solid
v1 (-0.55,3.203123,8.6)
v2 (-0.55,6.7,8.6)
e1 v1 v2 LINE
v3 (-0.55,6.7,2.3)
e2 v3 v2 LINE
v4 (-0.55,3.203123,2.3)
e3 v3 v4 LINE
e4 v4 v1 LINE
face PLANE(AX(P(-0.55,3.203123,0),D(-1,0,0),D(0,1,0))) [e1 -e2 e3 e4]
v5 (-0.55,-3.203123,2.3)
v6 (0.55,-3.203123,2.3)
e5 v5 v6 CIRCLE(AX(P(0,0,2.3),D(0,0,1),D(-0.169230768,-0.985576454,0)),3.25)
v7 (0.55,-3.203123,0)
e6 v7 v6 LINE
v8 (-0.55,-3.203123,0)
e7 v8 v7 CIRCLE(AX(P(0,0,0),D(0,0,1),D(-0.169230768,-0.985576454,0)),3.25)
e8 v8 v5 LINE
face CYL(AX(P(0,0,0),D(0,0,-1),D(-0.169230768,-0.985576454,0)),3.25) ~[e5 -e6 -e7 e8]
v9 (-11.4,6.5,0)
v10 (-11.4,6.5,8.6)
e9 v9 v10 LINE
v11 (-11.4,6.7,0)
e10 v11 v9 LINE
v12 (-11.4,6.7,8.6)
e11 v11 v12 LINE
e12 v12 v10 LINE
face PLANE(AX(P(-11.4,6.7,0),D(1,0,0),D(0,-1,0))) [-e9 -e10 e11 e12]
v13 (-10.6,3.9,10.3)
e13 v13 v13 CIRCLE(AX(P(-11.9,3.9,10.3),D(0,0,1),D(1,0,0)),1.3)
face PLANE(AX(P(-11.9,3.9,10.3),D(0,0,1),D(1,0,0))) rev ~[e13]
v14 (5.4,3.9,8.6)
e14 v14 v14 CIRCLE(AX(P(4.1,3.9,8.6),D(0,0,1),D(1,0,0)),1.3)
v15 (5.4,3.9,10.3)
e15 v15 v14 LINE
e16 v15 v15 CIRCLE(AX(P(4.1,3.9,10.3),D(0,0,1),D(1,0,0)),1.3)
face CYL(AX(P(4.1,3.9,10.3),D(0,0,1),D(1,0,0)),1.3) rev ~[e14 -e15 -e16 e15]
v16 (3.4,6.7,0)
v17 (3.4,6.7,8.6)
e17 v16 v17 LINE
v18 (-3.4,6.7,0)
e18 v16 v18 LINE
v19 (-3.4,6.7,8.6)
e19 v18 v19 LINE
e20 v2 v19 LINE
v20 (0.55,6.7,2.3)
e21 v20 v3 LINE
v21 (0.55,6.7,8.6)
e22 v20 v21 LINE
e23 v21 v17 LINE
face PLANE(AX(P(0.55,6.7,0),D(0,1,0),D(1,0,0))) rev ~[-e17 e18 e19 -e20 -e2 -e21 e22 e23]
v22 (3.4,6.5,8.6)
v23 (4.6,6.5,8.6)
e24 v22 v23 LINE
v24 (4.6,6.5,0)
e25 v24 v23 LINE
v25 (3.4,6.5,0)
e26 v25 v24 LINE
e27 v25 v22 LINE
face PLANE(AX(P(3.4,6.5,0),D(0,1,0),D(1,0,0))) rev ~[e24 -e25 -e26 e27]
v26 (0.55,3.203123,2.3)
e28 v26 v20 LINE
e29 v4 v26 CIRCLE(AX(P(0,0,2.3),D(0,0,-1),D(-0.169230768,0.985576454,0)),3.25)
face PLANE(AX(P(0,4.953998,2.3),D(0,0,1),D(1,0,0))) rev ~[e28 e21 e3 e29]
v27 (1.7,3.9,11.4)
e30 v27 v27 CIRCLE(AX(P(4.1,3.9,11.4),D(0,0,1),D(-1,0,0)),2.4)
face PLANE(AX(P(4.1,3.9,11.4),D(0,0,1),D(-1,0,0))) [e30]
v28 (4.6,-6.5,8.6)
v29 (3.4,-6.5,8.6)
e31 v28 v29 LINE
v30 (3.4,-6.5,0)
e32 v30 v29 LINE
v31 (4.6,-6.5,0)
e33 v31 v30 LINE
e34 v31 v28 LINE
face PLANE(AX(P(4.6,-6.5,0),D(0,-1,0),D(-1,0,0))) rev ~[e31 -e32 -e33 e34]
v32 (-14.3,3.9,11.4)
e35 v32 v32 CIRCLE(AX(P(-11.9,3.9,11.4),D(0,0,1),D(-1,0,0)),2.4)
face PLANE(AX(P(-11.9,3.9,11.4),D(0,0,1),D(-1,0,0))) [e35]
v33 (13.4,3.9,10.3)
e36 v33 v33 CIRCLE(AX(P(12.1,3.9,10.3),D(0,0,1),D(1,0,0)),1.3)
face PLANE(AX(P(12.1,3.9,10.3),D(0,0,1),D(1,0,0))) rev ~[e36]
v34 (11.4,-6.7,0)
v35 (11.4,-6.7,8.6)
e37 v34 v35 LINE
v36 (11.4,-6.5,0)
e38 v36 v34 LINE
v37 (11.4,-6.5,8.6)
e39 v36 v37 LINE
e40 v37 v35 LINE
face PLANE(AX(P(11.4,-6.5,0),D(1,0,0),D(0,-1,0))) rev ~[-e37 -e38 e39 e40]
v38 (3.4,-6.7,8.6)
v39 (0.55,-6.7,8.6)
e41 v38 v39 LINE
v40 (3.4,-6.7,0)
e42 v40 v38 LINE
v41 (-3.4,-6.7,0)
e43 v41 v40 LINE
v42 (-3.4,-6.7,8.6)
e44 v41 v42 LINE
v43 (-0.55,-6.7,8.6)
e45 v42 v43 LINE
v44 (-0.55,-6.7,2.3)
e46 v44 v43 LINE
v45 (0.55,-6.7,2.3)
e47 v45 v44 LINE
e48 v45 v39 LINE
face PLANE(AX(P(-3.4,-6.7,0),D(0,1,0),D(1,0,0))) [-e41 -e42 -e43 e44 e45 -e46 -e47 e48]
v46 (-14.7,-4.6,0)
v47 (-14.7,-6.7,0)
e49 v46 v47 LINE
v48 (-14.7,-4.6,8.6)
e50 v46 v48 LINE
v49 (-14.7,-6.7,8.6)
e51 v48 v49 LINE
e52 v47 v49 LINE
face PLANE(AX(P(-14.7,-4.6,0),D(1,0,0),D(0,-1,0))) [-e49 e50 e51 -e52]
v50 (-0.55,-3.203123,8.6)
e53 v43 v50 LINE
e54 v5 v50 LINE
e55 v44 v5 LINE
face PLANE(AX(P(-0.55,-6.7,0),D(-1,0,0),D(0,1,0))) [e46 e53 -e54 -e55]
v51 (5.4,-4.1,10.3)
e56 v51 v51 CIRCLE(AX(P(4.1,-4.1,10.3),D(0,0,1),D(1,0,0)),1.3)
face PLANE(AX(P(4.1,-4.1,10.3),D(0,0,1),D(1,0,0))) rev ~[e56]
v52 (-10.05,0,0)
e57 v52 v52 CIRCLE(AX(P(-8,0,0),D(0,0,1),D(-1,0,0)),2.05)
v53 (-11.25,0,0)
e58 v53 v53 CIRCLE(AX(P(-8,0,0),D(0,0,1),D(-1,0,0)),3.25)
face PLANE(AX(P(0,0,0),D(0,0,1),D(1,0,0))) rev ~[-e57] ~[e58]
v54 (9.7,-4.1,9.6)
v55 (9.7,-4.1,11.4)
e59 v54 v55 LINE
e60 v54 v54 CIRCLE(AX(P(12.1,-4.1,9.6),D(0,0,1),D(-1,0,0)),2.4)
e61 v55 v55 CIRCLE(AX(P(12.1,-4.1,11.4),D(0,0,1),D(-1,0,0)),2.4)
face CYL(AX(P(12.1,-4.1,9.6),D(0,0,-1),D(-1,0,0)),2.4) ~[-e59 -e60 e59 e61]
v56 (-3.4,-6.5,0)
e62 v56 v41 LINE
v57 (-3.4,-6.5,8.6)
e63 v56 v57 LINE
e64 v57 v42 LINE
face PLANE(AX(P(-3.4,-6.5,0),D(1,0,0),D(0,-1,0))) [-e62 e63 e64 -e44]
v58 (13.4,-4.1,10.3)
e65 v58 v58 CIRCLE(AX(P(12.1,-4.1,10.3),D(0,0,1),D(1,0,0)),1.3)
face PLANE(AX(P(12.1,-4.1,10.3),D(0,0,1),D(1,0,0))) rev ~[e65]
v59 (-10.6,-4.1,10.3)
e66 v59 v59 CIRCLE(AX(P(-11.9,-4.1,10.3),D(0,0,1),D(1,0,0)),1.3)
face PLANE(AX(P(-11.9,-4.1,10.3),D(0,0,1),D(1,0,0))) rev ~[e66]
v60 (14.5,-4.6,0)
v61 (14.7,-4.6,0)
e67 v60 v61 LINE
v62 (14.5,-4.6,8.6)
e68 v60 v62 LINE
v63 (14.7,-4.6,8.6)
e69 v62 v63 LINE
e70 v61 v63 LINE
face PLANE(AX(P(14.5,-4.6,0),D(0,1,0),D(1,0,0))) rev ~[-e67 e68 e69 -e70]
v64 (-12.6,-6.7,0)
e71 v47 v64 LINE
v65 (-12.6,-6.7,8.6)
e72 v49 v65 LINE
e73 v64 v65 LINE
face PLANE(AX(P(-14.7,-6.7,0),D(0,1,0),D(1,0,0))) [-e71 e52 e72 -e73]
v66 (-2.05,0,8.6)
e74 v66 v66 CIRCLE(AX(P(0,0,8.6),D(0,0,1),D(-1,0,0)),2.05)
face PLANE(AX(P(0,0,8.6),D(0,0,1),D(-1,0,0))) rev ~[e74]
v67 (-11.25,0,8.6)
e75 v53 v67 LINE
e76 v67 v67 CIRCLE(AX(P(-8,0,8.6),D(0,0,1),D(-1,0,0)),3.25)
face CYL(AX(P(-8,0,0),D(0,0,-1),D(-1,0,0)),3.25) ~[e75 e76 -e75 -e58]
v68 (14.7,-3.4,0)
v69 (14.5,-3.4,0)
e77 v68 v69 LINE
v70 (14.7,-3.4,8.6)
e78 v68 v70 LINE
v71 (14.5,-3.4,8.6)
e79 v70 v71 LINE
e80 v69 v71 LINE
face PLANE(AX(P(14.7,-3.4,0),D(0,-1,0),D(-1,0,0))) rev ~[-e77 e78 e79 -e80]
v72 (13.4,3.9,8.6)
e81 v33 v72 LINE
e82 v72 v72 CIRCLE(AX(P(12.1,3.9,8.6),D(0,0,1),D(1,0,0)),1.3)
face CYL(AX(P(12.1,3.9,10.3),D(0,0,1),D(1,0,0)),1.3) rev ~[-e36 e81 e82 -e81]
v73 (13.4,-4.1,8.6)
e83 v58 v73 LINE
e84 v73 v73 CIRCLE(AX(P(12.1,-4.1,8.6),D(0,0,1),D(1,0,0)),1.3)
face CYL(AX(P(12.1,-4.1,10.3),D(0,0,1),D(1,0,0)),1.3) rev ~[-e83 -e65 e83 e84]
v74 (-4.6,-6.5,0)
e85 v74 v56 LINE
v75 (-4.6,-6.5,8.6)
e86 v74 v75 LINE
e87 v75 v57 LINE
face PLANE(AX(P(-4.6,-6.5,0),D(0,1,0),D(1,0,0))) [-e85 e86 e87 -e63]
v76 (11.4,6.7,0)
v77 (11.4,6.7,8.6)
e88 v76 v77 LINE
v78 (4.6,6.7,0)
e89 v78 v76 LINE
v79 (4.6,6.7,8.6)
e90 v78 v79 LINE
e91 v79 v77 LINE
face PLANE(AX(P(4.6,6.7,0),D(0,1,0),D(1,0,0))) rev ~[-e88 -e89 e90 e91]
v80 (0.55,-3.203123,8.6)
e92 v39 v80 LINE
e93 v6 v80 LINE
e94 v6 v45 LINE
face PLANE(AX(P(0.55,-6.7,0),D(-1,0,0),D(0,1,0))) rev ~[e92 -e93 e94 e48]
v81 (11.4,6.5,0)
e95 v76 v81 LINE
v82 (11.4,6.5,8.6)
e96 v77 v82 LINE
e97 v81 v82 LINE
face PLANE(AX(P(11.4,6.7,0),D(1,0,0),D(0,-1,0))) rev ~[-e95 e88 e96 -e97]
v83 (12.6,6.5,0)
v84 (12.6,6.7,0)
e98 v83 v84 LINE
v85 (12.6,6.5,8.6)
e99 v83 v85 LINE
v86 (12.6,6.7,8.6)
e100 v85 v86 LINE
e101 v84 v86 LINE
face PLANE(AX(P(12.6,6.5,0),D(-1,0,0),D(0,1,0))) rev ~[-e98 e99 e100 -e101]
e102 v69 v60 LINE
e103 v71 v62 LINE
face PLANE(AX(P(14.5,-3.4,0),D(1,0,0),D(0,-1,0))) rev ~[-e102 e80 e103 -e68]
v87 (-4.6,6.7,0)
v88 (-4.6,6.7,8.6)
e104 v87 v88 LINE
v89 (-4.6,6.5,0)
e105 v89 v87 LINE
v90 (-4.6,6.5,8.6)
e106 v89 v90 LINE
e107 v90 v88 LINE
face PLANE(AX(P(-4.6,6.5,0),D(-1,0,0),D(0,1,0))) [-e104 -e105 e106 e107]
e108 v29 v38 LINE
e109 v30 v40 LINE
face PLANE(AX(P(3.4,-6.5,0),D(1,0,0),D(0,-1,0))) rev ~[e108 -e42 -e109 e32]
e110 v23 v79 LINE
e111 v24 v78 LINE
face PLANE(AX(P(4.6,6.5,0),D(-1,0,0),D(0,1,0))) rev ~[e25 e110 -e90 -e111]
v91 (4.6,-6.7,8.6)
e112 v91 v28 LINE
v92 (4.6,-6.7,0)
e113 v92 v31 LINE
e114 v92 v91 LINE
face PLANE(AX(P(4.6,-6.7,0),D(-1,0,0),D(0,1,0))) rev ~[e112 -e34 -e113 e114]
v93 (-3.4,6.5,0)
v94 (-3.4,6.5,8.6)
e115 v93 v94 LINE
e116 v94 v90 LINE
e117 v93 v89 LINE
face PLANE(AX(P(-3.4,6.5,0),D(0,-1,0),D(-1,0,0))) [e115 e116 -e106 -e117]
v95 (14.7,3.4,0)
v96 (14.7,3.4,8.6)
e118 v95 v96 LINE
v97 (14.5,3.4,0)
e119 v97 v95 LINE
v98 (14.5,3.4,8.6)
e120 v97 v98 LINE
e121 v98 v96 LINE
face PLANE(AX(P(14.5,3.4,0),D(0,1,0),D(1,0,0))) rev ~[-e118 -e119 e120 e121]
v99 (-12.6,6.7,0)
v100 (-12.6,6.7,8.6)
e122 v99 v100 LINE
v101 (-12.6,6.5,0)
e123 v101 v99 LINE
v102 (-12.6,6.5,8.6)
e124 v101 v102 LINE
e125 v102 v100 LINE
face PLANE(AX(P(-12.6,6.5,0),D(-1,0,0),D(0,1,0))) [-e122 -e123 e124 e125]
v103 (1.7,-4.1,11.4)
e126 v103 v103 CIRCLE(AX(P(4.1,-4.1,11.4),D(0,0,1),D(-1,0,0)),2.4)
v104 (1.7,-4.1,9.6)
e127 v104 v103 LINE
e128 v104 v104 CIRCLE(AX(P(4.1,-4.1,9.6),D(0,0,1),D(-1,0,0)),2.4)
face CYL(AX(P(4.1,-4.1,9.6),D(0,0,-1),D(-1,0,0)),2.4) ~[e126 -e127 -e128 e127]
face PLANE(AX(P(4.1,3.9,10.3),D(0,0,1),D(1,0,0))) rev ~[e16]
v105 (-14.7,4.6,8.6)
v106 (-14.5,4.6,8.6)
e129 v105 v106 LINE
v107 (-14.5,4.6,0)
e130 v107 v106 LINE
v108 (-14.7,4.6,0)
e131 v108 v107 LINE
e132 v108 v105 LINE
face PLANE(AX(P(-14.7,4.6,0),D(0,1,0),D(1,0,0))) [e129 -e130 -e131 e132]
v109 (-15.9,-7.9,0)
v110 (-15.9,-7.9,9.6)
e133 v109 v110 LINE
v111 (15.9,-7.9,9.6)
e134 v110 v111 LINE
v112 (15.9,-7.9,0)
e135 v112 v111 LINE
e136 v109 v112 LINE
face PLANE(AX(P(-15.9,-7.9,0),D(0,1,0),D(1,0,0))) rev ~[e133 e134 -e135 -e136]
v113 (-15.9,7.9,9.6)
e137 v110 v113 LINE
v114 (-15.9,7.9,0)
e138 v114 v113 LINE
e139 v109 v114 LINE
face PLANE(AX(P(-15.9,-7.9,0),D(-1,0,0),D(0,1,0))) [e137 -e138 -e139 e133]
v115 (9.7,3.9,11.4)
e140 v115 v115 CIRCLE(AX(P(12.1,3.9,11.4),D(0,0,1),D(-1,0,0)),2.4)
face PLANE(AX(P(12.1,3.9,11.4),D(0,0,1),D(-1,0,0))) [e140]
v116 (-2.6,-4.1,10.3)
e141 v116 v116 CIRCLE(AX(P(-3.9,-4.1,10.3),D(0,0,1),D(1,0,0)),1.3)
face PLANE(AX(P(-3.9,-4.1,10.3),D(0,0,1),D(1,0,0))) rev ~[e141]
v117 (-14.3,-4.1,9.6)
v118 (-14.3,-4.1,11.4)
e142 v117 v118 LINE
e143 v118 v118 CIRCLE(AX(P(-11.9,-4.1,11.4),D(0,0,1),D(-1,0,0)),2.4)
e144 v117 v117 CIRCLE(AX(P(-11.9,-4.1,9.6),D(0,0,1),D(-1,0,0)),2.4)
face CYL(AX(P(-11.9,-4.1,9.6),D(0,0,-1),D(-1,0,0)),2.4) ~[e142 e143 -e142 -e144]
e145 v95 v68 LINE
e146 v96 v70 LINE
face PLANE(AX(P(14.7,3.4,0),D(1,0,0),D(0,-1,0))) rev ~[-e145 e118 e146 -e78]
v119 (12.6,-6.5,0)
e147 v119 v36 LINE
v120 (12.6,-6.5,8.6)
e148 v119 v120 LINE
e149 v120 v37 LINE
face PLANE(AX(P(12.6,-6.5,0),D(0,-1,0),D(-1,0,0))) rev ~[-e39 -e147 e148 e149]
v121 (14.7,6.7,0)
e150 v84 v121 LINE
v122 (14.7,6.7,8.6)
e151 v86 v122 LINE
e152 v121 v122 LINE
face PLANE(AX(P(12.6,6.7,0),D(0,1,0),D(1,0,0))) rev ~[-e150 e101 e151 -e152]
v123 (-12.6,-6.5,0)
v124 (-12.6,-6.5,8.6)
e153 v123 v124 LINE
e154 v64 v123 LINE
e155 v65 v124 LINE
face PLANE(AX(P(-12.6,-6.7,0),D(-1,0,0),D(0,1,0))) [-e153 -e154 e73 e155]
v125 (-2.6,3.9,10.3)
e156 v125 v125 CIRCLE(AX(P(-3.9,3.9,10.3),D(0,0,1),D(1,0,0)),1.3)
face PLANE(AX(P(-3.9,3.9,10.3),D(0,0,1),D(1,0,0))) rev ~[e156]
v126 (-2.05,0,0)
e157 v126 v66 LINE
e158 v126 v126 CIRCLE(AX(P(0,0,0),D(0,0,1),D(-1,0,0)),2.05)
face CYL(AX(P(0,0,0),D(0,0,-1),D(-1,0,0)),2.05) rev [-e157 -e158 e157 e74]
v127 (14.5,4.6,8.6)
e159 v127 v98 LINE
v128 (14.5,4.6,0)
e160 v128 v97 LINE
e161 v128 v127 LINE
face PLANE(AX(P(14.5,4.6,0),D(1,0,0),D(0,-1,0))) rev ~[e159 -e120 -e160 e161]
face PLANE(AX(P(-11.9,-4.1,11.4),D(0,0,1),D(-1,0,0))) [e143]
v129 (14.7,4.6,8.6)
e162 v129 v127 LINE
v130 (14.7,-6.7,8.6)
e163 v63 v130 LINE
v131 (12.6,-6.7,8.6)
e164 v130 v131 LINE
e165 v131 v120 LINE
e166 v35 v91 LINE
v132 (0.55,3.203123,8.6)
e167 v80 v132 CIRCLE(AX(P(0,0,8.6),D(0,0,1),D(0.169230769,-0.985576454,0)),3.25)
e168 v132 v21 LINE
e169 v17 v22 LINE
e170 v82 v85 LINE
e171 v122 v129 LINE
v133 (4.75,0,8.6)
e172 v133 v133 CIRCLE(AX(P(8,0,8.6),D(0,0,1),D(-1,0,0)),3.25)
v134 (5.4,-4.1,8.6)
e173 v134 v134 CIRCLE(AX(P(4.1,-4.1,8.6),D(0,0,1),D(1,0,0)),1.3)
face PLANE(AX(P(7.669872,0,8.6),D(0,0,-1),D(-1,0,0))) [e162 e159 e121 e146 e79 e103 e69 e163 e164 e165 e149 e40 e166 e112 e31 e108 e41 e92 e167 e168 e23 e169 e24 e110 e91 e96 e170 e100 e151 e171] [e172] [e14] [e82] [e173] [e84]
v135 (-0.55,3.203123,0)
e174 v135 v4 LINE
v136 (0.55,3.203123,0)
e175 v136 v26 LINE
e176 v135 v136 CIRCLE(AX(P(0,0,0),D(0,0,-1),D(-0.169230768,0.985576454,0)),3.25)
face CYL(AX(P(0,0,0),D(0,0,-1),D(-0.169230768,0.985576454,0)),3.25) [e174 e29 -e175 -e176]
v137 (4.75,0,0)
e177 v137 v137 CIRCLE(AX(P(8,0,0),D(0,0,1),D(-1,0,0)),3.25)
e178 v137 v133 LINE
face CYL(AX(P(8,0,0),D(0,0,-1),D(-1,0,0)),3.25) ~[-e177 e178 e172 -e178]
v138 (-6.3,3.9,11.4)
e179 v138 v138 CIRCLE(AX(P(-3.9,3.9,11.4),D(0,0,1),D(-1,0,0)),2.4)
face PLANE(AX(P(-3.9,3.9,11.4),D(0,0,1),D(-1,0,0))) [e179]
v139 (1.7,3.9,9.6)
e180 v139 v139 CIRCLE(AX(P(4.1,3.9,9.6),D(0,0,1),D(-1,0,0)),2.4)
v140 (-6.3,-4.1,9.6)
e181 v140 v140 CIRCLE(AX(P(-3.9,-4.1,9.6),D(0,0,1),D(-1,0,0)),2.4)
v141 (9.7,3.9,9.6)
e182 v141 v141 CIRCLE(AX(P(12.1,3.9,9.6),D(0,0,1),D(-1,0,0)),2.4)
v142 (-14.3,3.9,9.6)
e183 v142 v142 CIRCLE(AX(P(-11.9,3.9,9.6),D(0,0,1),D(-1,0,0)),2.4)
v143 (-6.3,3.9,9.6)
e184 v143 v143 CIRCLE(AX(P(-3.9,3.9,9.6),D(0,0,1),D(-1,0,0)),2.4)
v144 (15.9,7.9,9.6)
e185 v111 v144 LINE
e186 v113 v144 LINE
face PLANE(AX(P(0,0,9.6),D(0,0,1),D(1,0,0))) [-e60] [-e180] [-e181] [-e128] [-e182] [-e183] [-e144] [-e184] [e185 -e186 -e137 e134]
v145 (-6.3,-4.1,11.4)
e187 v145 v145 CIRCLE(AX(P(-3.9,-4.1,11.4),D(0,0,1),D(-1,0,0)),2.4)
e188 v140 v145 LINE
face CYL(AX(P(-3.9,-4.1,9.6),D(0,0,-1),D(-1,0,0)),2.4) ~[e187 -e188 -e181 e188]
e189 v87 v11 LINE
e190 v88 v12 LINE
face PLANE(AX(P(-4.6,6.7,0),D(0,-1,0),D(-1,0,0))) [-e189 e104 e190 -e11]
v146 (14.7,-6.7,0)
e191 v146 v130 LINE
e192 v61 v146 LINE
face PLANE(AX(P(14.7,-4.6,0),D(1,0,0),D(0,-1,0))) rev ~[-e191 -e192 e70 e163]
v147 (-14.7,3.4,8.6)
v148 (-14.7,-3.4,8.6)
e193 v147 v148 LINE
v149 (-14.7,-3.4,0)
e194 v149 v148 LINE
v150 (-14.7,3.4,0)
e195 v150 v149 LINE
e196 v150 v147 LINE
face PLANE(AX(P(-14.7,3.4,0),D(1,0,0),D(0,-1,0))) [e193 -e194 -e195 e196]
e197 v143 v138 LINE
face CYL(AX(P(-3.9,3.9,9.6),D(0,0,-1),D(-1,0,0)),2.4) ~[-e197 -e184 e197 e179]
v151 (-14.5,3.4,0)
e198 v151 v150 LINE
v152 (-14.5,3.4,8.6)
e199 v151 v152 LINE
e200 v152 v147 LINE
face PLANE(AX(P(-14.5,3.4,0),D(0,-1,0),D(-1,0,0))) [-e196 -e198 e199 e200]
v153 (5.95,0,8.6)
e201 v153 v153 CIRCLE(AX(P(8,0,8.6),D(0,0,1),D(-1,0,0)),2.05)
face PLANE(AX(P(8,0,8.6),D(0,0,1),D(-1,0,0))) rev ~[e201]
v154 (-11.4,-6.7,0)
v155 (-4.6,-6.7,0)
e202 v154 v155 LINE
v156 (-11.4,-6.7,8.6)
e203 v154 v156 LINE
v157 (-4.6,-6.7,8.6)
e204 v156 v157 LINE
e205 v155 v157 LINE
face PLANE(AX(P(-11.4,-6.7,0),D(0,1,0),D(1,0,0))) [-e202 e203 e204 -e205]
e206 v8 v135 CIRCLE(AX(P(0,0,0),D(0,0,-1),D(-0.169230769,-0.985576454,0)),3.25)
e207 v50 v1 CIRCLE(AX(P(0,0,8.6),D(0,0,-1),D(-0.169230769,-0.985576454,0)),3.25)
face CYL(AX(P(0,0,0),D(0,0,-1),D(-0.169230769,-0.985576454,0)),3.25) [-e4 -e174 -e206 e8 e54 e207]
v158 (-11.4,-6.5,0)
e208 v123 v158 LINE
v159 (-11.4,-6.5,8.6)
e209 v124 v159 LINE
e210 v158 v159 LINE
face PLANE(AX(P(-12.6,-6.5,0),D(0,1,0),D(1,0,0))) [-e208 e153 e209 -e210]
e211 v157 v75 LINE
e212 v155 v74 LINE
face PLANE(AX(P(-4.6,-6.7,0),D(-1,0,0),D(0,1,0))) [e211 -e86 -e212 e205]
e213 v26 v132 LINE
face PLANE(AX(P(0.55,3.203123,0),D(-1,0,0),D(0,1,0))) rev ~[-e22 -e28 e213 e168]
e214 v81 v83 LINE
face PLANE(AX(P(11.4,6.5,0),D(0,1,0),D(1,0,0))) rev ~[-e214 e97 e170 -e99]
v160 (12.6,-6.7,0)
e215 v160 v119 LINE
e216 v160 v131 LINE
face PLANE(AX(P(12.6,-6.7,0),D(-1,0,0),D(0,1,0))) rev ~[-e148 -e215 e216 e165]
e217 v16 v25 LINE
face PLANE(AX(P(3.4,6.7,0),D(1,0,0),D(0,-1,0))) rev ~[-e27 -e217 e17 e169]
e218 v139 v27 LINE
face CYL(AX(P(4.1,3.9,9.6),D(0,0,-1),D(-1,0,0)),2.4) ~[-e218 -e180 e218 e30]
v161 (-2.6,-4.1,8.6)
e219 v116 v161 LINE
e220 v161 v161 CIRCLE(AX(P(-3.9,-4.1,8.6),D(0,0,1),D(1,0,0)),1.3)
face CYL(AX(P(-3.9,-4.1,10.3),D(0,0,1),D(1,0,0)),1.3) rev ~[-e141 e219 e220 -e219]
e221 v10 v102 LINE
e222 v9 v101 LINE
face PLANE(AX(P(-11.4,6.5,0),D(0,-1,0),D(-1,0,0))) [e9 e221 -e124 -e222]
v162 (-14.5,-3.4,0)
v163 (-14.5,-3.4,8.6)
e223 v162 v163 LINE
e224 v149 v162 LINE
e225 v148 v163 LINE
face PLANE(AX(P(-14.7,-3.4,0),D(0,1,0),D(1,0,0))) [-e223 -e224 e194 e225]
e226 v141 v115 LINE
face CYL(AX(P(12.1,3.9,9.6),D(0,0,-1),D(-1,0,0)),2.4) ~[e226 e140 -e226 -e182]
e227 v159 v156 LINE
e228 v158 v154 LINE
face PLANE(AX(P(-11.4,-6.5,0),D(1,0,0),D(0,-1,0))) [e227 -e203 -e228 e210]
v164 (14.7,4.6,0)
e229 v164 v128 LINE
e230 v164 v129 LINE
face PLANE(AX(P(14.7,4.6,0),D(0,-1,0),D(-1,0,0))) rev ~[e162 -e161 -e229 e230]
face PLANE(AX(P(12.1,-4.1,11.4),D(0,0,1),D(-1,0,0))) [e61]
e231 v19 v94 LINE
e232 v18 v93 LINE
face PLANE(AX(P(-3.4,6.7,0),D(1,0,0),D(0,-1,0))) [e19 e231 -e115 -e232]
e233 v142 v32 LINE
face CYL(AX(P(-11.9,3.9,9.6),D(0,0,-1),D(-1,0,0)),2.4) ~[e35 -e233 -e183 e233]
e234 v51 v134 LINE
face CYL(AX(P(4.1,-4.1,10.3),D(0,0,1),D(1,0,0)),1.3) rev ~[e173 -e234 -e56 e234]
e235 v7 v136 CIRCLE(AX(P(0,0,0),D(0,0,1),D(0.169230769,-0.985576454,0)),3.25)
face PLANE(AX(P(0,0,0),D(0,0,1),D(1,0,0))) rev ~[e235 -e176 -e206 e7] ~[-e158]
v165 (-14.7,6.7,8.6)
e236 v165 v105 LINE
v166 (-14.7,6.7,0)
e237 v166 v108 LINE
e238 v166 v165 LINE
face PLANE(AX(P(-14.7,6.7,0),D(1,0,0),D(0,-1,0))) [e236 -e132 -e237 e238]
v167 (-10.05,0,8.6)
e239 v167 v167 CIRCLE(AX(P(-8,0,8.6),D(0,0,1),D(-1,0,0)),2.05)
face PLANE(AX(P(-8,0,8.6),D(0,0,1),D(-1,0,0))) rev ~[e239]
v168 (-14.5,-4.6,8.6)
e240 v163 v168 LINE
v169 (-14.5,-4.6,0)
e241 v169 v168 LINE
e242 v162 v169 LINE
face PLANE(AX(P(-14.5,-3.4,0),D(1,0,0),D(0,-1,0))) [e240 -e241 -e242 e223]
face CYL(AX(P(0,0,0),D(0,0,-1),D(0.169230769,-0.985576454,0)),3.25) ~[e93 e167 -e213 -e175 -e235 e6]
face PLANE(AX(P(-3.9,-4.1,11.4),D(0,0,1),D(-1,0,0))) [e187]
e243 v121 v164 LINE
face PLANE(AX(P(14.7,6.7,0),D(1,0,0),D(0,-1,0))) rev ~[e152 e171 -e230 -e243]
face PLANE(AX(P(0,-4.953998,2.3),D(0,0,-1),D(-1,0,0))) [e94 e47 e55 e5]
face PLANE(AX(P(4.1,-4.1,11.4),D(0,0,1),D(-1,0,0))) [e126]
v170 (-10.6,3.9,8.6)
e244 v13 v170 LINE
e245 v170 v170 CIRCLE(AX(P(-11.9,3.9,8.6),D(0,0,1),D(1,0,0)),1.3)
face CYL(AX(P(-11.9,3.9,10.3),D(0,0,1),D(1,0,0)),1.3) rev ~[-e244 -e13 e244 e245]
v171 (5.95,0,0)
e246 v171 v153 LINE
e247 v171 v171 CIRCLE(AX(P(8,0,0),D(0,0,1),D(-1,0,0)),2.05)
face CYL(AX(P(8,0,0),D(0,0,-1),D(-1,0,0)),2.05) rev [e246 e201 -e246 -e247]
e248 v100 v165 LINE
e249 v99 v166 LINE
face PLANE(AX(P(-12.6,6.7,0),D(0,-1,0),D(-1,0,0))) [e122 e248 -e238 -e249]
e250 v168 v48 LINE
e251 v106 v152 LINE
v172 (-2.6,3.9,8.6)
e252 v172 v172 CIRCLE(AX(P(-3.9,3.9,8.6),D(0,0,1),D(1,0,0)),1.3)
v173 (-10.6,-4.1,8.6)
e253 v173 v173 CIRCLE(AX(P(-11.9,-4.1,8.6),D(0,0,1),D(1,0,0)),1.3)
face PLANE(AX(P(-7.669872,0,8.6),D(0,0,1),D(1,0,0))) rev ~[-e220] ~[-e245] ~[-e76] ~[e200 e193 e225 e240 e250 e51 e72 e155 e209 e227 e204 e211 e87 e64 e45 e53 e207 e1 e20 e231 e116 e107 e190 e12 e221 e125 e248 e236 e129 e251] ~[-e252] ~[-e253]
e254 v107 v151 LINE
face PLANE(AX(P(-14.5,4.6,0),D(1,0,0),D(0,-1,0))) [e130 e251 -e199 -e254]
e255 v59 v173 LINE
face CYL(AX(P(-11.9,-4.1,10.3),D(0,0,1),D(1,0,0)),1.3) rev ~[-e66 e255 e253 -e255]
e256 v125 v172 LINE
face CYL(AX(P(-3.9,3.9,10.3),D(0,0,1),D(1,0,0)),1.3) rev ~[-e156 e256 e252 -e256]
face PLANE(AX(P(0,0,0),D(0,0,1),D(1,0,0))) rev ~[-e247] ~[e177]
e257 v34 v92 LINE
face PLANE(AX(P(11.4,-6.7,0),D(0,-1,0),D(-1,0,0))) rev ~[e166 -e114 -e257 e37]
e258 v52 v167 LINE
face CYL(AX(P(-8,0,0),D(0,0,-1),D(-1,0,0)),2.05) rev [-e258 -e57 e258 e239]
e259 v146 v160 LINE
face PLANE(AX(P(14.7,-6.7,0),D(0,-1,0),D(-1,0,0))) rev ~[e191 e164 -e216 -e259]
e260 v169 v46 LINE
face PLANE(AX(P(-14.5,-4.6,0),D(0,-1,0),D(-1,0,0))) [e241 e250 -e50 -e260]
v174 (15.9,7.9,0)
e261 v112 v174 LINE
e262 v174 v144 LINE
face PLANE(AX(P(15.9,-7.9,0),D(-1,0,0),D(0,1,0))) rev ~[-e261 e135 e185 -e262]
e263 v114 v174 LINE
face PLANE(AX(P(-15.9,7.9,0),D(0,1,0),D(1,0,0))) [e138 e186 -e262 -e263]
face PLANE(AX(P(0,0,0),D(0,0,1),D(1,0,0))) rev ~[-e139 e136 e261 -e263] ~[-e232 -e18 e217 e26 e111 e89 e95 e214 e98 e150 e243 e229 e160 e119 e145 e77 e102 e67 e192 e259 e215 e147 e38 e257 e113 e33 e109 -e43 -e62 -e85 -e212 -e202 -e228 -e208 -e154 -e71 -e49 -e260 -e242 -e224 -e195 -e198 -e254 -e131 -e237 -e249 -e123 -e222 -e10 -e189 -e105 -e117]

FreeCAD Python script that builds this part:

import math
import FreeCAD as App
import Part
import Sketcher
from FreeCAD import Vector


def add_polygon(sketch, points):
    """Adds a closed chain of lines whose ends are joined by coincident constraints."""
    first, n = sketch.GeometryCount, len(points)
    for a, b in zip(points, points[1:] + points[:1]):
        sketch.addGeometry(Part.LineSegment(App.Vector(*a, 0), App.Vector(*b, 0)), False)
    for i in range(n):
        sketch.addConstraint(Sketcher.Constraint("Coincident", first + i, 2, first + (i + 1) % n, 1))

doc = App.newDocument("Part")
body = doc.addObject("PartDesign::Body", "Body")

# Sketch on XY plane
sketch1 = body.newObject("Sketcher::SketchObject", "Sketch")
sketch1.AttachmentSupport = (doc.getObject("XY_Plane"), [""])
sketch1.MapMode = "FlatFace"
add_polygon(sketch1, [(-15.9, 7.9), (-15.9, -7.9), (15.9, -7.9), (15.9, 7.9)])  # lines 0-3
sketch1.addConstraint(Sketcher.Constraint("Vertical", 0))
sketch1.addConstraint(Sketcher.Constraint("Horizontal", 1))
sketch1.addConstraint(Sketcher.Constraint("Vertical", 2))
sketch1.addConstraint(Sketcher.Constraint("Horizontal", 3))
sketch1.addConstraint(Sketcher.Constraint("Symmetric", 0, 2, 2, 2, -1, 1))
sketch1.addConstraint(Sketcher.Constraint("DistanceX", 1, 1, 1, 2, 31.8))
sketch1.addConstraint(Sketcher.Constraint("DistanceY", 0, 2, 0, 1, 15.8))
pad1 = body.newObject("PartDesign::Pad", "Pad")
pad1.Profile = sketch1
pad1.Length = 9.6

# Sketch on XY plane
sketch2 = body.newObject("Sketcher::SketchObject", "Sketch001")
sketch2.AttachmentSupport = (doc.getObject("XY_Plane"), [""])
sketch2.MapMode = "FlatFace"
sketch2.AttachmentOffset = App.Placement(Vector(0, 0, 9.6), App.Rotation())
sketch2.addGeometry(Part.Circle(Vector(-11.9, 3.9, 0), Vector(0, 0, 1), 2.4), False)
sketch2.addGeometry(Part.Circle(Vector(-3.9, 3.9, 0), Vector(0, 0, 1), 2.4), False)
sketch2.addGeometry(Part.Circle(Vector(4.1, 3.9, 0), Vector(0, 0, 1), 2.4), False)
sketch2.addGeometry(Part.Circle(Vector(12.1, 3.9, 0), Vector(0, 0, 1), 2.4), False)
sketch2.addGeometry(Part.Circle(Vector(-3.9, -4.1, 0), Vector(0, 0, 1), 2.4), False)
sketch2.addGeometry(Part.Circle(Vector(4.1, -4.1, 0), Vector(0, 0, 1), 2.4), False)
sketch2.addGeometry(Part.Circle(Vector(12.1, -4.1, 0), Vector(0, 0, 1), 2.4), False)
sketch2.addGeometry(Part.Circle(Vector(-11.9, -4.1, 0), Vector(0, 0, 1), 2.4), False)
sketch2.addConstraint(Sketcher.Constraint("Equal", 0, 1))
sketch2.addConstraint(Sketcher.Constraint("Equal", 1, 2))
sketch2.addConstraint(Sketcher.Constraint("Equal", 2, 3))
sketch2.addConstraint(Sketcher.Constraint("Equal", 3, 4))
sketch2.addConstraint(Sketcher.Constraint("Equal", 4, 5))
sketch2.addConstraint(Sketcher.Constraint("Equal", 5, 6))
sketch2.addConstraint(Sketcher.Constraint("Equal", 6, 7))
sketch2.addConstraint(Sketcher.Constraint("Horizontal", 0, 3, 1, 3))
sketch2.addConstraint(Sketcher.Constraint("Horizontal", 1, 3, 2, 3))
sketch2.addConstraint(Sketcher.Constraint("Horizontal", 2, 3, 3, 3))
sketch2.addConstraint(Sketcher.Constraint("Horizontal", 4, 3, 5, 3))
sketch2.addConstraint(Sketcher.Constraint("Horizontal", 5, 3, 6, 3))
sketch2.addConstraint(Sketcher.Constraint("Horizontal", 6, 3, 7, 3))
sketch2.addConstraint(Sketcher.Constraint("Vertical", 1, 3, 4, 3))
sketch2.addConstraint(Sketcher.Constraint("Vertical", 2, 3, 5, 3))
sketch2.addConstraint(Sketcher.Constraint("Vertical", 3, 3, 6, 3))
sketch2.addConstraint(Sketcher.Constraint("Vertical", 0, 3, 7, 3))
sketch2.addConstraint(Sketcher.Constraint("Diameter", 0, 4.8))
sketch2.addConstraint(Sketcher.Constraint("DistanceX", 0, 3, 1, 3, 8.0))
sketch2.addConstraint(Sketcher.Constraint("DistanceX", 1, 3, 2, 3, 8.0))
sketch2.addConstraint(Sketcher.Constraint("DistanceX", 2, 3, 3, 3, 8.0))
sketch2.addConstraint(Sketcher.Constraint("DistanceY", 4, 3, 1, 3, 8.0))
sketch2.addConstraint(Sketcher.Constraint("DistanceX", 0, 3, -1, 1, 11.9))
sketch2.addConstraint(Sketcher.Constraint("DistanceY", -1, 1, 0, 3, 3.9))
pad2 = body.newObject("PartDesign::Pad", "Pad001")
pad2.Profile = sketch2
pad2.Length = 1.8

# Sketch on XY plane
sketch3 = body.newObject("Sketcher::SketchObject", "Sketch002")
sketch3.AttachmentSupport = (doc.getObject("XY_Plane"), [""])
sketch3.MapMode = "FlatFace"
sketch3.AttachmentOffset = App.Placement(Vector(0, 0, 10.3), App.Rotation())
sketch3.addGeometry(Part.Circle(Vector(-11.9, 3.9, 0), Vector(0, 0, 1), 1.3), False)
sketch3.addGeometry(Part.Circle(Vector(-3.9, 3.9, 0), Vector(0, 0, 1), 1.3), False)
sketch3.addGeometry(Part.Circle(Vector(4.1, 3.9, 0), Vector(0, 0, 1), 1.3), False)
sketch3.addGeometry(Part.Circle(Vector(12.1, 3.9, 0), Vector(0, 0, 1), 1.3), False)
sketch3.addGeometry(Part.Circle(Vector(-3.9, -4.1, 0), Vector(0, 0, 1), 1.3), False)
sketch3.addGeometry(Part.Circle(Vector(4.1, -4.1, 0), Vector(0, 0, 1), 1.3), False)
sketch3.addGeometry(Part.Circle(Vector(12.1, -4.1, 0), Vector(0, 0, 1), 1.3), False)
sketch3.addGeometry(Part.Circle(Vector(-11.9, -4.1, 0), Vector(0, 0, 1), 1.3), False)
sketch3.addConstraint(Sketcher.Constraint("Equal", 0, 1))
sketch3.addConstraint(Sketcher.Constraint("Equal", 1, 2))
sketch3.addConstraint(Sketcher.Constraint("Equal", 2, 3))
sketch3.addConstraint(Sketcher.Constraint("Equal", 3, 4))
sketch3.addConstraint(Sketcher.Constraint("Equal", 4, 5))
sketch3.addConstraint(Sketcher.Constraint("Equal", 5, 6))
sketch3.addConstraint(Sketcher.Constraint("Equal", 6, 7))
sketch3.addConstraint(Sketcher.Constraint("Horizontal", 0, 3, 1, 3))
sketch3.addConstraint(Sketcher.Constraint("Horizontal", 1, 3, 2, 3))
sketch3.addConstraint(Sketcher.Constraint("Horizontal", 2, 3, 3, 3))
sketch3.addConstraint(Sketcher.Constraint("Horizontal", 4, 3, 5, 3))
sketch3.addConstraint(Sketcher.Constraint("Horizontal", 5, 3, 6, 3))
sketch3.addConstraint(Sketcher.Constraint("Horizontal", 6, 3, 7, 3))
sketch3.addConstraint(Sketcher.Constraint("Vertical", 1, 3, 4, 3))
sketch3.addConstraint(Sketcher.Constraint("Vertical", 2, 3, 5, 3))
sketch3.addConstraint(Sketcher.Constraint("Vertical", 3, 3, 6, 3))
sketch3.addConstraint(Sketcher.Constraint("Vertical", 0, 3, 7, 3))
sketch3.addConstraint(Sketcher.Constraint("Diameter", 0, 2.6))
sketch3.addConstraint(Sketcher.Constraint("DistanceX", 0, 3, 1, 3, 8.0))
sketch3.addConstraint(Sketcher.Constraint("DistanceX", 1, 3, 2, 3, 8.0))
sketch3.addConstraint(Sketcher.Constraint("DistanceX", 2, 3, 3, 3, 8.0))
sketch3.addConstraint(Sketcher.Constraint("DistanceY", 4, 3, 1, 3, 8.0))
sketch3.addConstraint(Sketcher.Constraint("DistanceX", 0, 3, -1, 1, 11.9))
sketch3.addConstraint(Sketcher.Constraint("DistanceY", -1, 1, 0, 3, 3.9))
pocket1 = body.newObject("PartDesign::Pocket", "Pocket")
pocket1.Profile = sketch3
pocket1.Length = 20.7

# Sketch on XY plane
sketch4 = body.newObject("Sketcher::SketchObject", "Sketch003")
sketch4.AttachmentSupport = (doc.getObject("XY_Plane"), [""])
sketch4.MapMode = "FlatFace"
sketch4.addGeometry(Part.Circle(Vector(0, 0, 0), Vector(0, 0, 1), 2.05), False)
sketch4.addGeometry(Part.LineSegment(Vector(-14.7, 3.4, 0), Vector(-14.7, -3.4, 0)), False)
sketch4.addGeometry(Part.LineSegment(Vector(-14.7, -3.4, 0), Vector(-14.5, -3.4, 0)), False)
sketch4.addGeometry(Part.LineSegment(Vector(-14.5, -3.4, 0), Vector(-14.5, -4.6, 0)), False)
sketch4.addGeometry(Part.LineSegment(Vector(-14.5, -4.6, 0), Vector(-14.7, -4.6, 0)), False)
sketch4.addGeometry(Part.LineSegment(Vector(-14.7, -4.6, 0), Vector(-14.7, -6.7, 0)), False)
sketch4.addGeometry(Part.LineSegment(Vector(-14.7, -6.7, 0), Vector(-12.6, -6.7, 0)), False)
sketch4.addGeometry(Part.LineSegment(Vector(-12.6, -6.7, 0), Vector(-12.6, -6.5, 0)), False)
sketch4.addGeometry(Part.LineSegment(Vector(-12.6, -6.5, 0), Vector(-11.4, -6.5, 0)), False)
sketch4.addGeometry(Part.LineSegment(Vector(-11.4, -6.5, 0), Vector(-11.4, -6.7, 0)), False)
sketch4.addGeometry(Part.LineSegment(Vector(-11.4, -6.7, 0), Vector(-4.6, -6.7, 0)), False)
sketch4.addGeometry(Part.LineSegment(Vector(-4.6, -6.7, 0), Vector(-4.6, -6.5, 0)), False)
sketch4.addGeometry(Part.LineSegment(Vector(-4.6, -6.5, 0), Vector(-3.4, -6.5, 0)), False)
sketch4.addGeometry(Part.LineSegment(Vector(-3.4, -6.5, 0), Vector(-3.4, -6.7, 0)), False)
sketch4.addGeometry(Part.LineSegment(Vector(-3.4, -6.7, 0), Vector(-0.55, -6.7, 0)), False)
sketch4.addGeometry(Part.LineSegment(Vector(-0.55, -6.7, 0), Vector(-0.55, -3.203123, 0)), False)
sketch4.addGeometry(Part.ArcOfCircle(Part.Circle(Vector(0, 0, 0), Vector(0, 0, 1), 3.25), math.radians(99.743097), math.radians(260.256903)), False)
sketch4.addGeometry(Part.LineSegment(Vector(-0.55, 3.203123, 0), Vector(-0.55, 6.7, 0)), False)
sketch4.addGeometry(Part.LineSegment(Vector(-0.55, 6.7, 0), Vector(-3.4, 6.7, 0)), False)
sketch4.addGeometry(Part.LineSegment(Vector(-3.4, 6.7, 0), Vector(-3.4, 6.5, 0)), False)
sketch4.addGeometry(Part.LineSegment(Vector(-3.4, 6.5, 0), Vector(-4.6, 6.5, 0)), False)
sketch4.addGeometry(Part.LineSegment(Vector(-4.6, 6.5, 0), Vector(-4.6, 6.7, 0)), False)
sketch4.addGeometry(Part.LineSegment(Vector(-4.6, 6.7, 0), Vector(-11.4, 6.7, 0)), False)
sketch4.addGeometry(Part.LineSegment(Vector(-11.4, 6.7, 0), Vector(-11.4, 6.5, 0)), False)
sketch4.addGeometry(Part.LineSegment(Vector(-11.4, 6.5, 0), Vector(-12.6, 6.5, 0)), False)
sketch4.addGeometry(Part.LineSegment(Vector(-12.6, 6.5, 0), Vector(-12.6, 6.7, 0)), False)
sketch4.addGeometry(Part.LineSegment(Vector(-12.6, 6.7, 0), Vector(-14.7, 6.7, 0)), False)
sketch4.addGeometry(Part.LineSegment(Vector(-14.7, 6.7, 0), Vector(-14.7, 4.6, 0)), False)
sketch4.addGeometry(Part.LineSegment(Vector(-14.7, 4.6, 0), Vector(-14.5, 4.6, 0)), False)
sketch4.addGeometry(Part.LineSegment(Vector(-14.5, 4.6, 0), Vector(-14.5, 3.4, 0)), False)
sketch4.addGeometry(Part.LineSegment(Vector(-14.5, 3.4, 0), Vector(-14.7, 3.4, 0)), False)
sketch4.addGeometry(Part.Circle(Vector(-8, 0, 0), Vector(0, 0, 1), 3.25), False)
sketch4.addGeometry(Part.Circle(Vector(-8, 0, 0), Vector(0, 0, 1), 2.05), False)
sketch4.addGeometry(Part.LineSegment(Vector(0.55, -3.203123, 0), Vector(0.55, -6.7, 0)), False)
sketch4.addGeometry(Part.LineSegment(Vector(0.55, -6.7, 0), Vector(3.4, -6.7, 0)), False)
sketch4.addGeometry(Part.LineSegment(Vector(3.4, -6.7, 0), Vector(3.4, -6.5, 0)), False)
sketch4.addGeometry(Part.LineSegment(Vector(3.4, -6.5, 0), Vector(4.6, -6.5, 0)), False)
sketch4.addGeometry(Part.LineSegment(Vector(4.6, -6.5, 0), Vector(4.6, -6.7, 0)), False)
sketch4.addGeometry(Part.LineSegment(Vector(4.6, -6.7, 0), Vector(11.4, -6.7, 0)), False)
sketch4.addGeometry(Part.LineSegment(Vector(11.4, -6.7, 0), Vector(11.4, -6.5, 0)), False)
sketch4.addGeometry(Part.LineSegment(Vector(11.4, -6.5, 0), Vector(12.6, -6.5, 0)), False)
sketch4.addGeometry(Part.LineSegment(Vector(12.6, -6.5, 0), Vector(12.6, -6.7, 0)), False)
sketch4.addGeometry(Part.LineSegment(Vector(12.6, -6.7, 0), Vector(14.7, -6.7, 0)), False)
sketch4.addGeometry(Part.LineSegment(Vector(14.7, -6.7, 0), Vector(14.7, -4.6, 0)), False)
sketch4.addGeometry(Part.LineSegment(Vector(14.7, -4.6, 0), Vector(14.5, -4.6, 0)), False)
sketch4.addGeometry(Part.LineSegment(Vector(14.5, -4.6, 0), Vector(14.5, -3.4, 0)), False)
sketch4.addGeometry(Part.LineSegment(Vector(14.5, -3.4, 0), Vector(14.7, -3.4, 0)), False)
sketch4.addGeometry(Part.LineSegment(Vector(14.7, -3.4, 0), Vector(14.7, 3.4, 0)), False)
sketch4.addGeometry(Part.LineSegment(Vector(14.7, 3.4, 0), Vector(14.5, 3.4, 0)), False)
sketch4.addGeometry(Part.LineSegment(Vector(14.5, 3.4, 0), Vector(14.5, 4.6, 0)), False)
sketch4.addGeometry(Part.LineSegment(Vector(14.5, 4.6, 0), Vector(14.7, 4.6, 0)), False)
sketch4.addGeometry(Part.LineSegment(Vector(14.7, 4.6, 0), Vector(14.7, 6.7, 0)), False)
sketch4.addGeometry(Part.LineSegment(Vector(14.7, 6.7, 0), Vector(12.6, 6.7, 0)), False)
sketch4.addGeometry(Part.LineSegment(Vector(12.6, 6.7, 0), Vector(12.6, 6.5, 0)), False)
sketch4.addGeometry(Part.LineSegment(Vector(12.6, 6.5, 0), Vector(11.4, 6.5, 0)), False)
sketch4.addGeometry(Part.LineSegment(Vector(11.4, 6.5, 0), Vector(11.4, 6.7, 0)), False)
sketch4.addGeometry(Part.LineSegment(Vector(11.4, 6.7, 0), Vector(4.6, 6.7, 0)), False)
sketch4.addGeometry(Part.LineSegment(Vector(4.6, 6.7, 0), Vector(4.6, 6.5, 0)), False)
sketch4.addGeometry(Part.LineSegment(Vector(4.6, 6.5, 0), Vector(3.4, 6.5, 0)), False)
sketch4.addGeometry(Part.LineSegment(Vector(3.4, 6.5, 0), Vector(3.4, 6.7, 0)), False)
sketch4.addGeometry(Part.LineSegment(Vector(3.4, 6.7, 0), Vector(0.55, 6.7, 0)), False)
sketch4.addGeometry(Part.LineSegment(Vector(0.55, 6.7, 0), Vector(0.55, 3.203123, 0)), False)
sketch4.addGeometry(Part.ArcOfCircle(Part.Circle(Vector(0, 0, 0), Vector(0, 0, 1), 3.25), math.radians(-80.256903), math.radians(80.256903)), False)
sketch4.addGeometry(Part.Circle(Vector(8, 0, 0), Vector(0, 0, 1), 3.25), False)
sketch4.addGeometry(Part.Circle(Vector(8, 0, 0), Vector(0, 0, 1), 2.05), False)
sketch4.addConstraint(Sketcher.Constraint("Coincident", 1, 2, 2, 1))
sketch4.addConstraint(Sketcher.Constraint("Coincident", 2, 2, 3, 1))
sketch4.addConstraint(Sketcher.Constraint("Coincident", 3, 2, 4, 1))
sketch4.addConstraint(Sketcher.Constraint("Coincident", 4, 2, 5, 1))
sketch4.addConstraint(Sketcher.Constraint("Coincident", 5, 2, 6, 1))
sketch4.addConstraint(Sketcher.Constraint("Coincident", 6, 2, 7, 1))
sketch4.addConstraint(Sketcher.Constraint("Coincident", 7, 2, 8, 1))
sketch4.addConstraint(Sketcher.Constraint("Coincident", 8, 2, 9, 1))
sketch4.addConstraint(Sketcher.Constraint("Coincident", 9, 2, 10, 1))
sketch4.addConstraint(Sketcher.Constraint("Coincident", 10, 2, 11, 1))
sketch4.addConstraint(Sketcher.Constraint("Coincident", 11, 2, 12, 1))
sketch4.addConstraint(Sketcher.Constraint("Coincident", 12, 2, 13, 1))
sketch4.addConstraint(Sketcher.Constraint("Coincident", 13, 2, 14, 1))
sketch4.addConstraint(Sketcher.Constraint("Coincident", 14, 2, 15, 1))
sketch4.addConstraint(Sketcher.Constraint("Coincident", 15, 2, 16, 2))
sketch4.addConstraint(Sketcher.Constraint("Coincident", 16, 1, 17, 1))
sketch4.addConstraint(Sketcher.Constraint("Coincident", 17, 2, 18, 1))
sketch4.addConstraint(Sketcher.Constraint("Coincident", 18, 2, 19, 1))
sketch4.addConstraint(Sketcher.Constraint("Coincident", 19, 2, 20, 1))
sketch4.addConstraint(Sketcher.Constraint("Coincident", 20, 2, 21, 1))
sketch4.addConstraint(Sketcher.Constraint("Coincident", 21, 2, 22, 1))
sketch4.addConstraint(Sketcher.Constraint("Coincident", 22, 2, 23, 1))
sketch4.addConstraint(Sketcher.Constraint("Coincident", 23, 2, 24, 1))
sketch4.addConstraint(Sketcher.Constraint("Coincident", 24, 2, 25, 1))
sketch4.addConstraint(Sketcher.Constraint("Coincident", 25, 2, 26, 1))
sketch4.addConstraint(Sketcher.Constraint("Coincident", 26, 2, 27, 1))
sketch4.addConstraint(Sketcher.Constraint("Coincident", 27, 2, 28, 1))
sketch4.addConstraint(Sketcher.Constraint("Coincident", 28, 2, 29, 1))
sketch4.addConstraint(Sketcher.Constraint("Coincident", 29, 2, 30, 1))
sketch4.addConstraint(Sketcher.Constraint("Coincident", 30, 2, 1, 1))
sketch4.addConstraint(Sketcher.Constraint("Coincident", 33, 2, 34, 1))
sketch4.addConstraint(Sketcher.Constraint("Coincident", 34, 2, 35, 1))
sketch4.addConstraint(Sketcher.Constraint("Coincident", 35, 2, 36, 1))
sketch4.addConstraint(Sketcher.Constraint("Coincident", 36, 2, 37, 1))
sketch4.addConstraint(Sketcher.Constraint("Coincident", 37, 2, 38, 1))
sketch4.addConstraint(Sketcher.Constraint("Coincident", 38, 2, 39, 1))
sketch4.addConstraint(Sketcher.Constraint("Coincident", 39, 2, 40, 1))
sketch4.addConstraint(Sketcher.Constraint("Coincident", 40, 2, 41, 1))
sketch4.addConstraint(Sketcher.Constraint("Coincident", 41, 2, 42, 1))
sketch4.addConstraint(Sketcher.Constraint("Coincident", 42, 2, 43, 1))
sketch4.addConstraint(Sketcher.Constraint("Coincident", 43, 2, 44, 1))
sketch4.addConstraint(Sketcher.Constraint("Coincident", 44, 2, 45, 1))
sketch4.addConstraint(Sketcher.Constraint("Coincident", 45, 2, 46, 1))
sketch4.addConstraint(Sketcher.Constraint("Coincident", 46, 2, 47, 1))
sketch4.addConstraint(Sketcher.Constraint("Coincident", 47, 2, 48, 1))
sketch4.addConstraint(Sketcher.Constraint("Coincident", 48, 2, 49, 1))
sketch4.addConstraint(Sketcher.Constraint("Coincident", 49, 2, 50, 1))
sketch4.addConstraint(Sketcher.Constraint("Coincident", 50, 2, 51, 1))
sketch4.addConstraint(Sketcher.Constraint("Coincident", 51, 2, 52, 1))
sketch4.addConstraint(Sketcher.Constraint("Coincident", 52, 2, 53, 1))
sketch4.addConstraint(Sketcher.Constraint("Coincident", 53, 2, 54, 1))
sketch4.addConstraint(Sketcher.Constraint("Coincident", 54, 2, 55, 1))
sketch4.addConstraint(Sketcher.Constraint("Coincident", 55, 2, 56, 1))
sketch4.addConstraint(Sketcher.Constraint("Coincident", 56, 2, 57, 1))
sketch4.addConstraint(Sketcher.Constraint("Coincident", 57, 2, 58, 1))
sketch4.addConstraint(Sketcher.Constraint("Coincident", 58, 2, 59, 1))
sketch4.addConstraint(Sketcher.Constraint("Coincident", 59, 2, 60, 1))
sketch4.addConstraint(Sketcher.Constraint("Coincident", 60, 2, 61, 1))
sketch4.addConstraint(Sketcher.Constraint("Coincident", 61, 2, 62, 2))
sketch4.addConstraint(Sketcher.Constraint("Coincident", 62, 1, 33, 1))
sketch4.addConstraint(Sketcher.Constraint("Vertical", 1))
sketch4.addConstraint(Sketcher.Constraint("Horizontal", 2))
sketch4.addConstraint(Sketcher.Constraint("Vertical", 3))
sketch4.addConstraint(Sketcher.Constraint("Horizontal", 4))
sketch4.addConstraint(Sketcher.Constraint("Vertical", 5))
sketch4.addConstraint(Sketcher.Constraint("Horizontal", 6))
sketch4.addConstraint(Sketcher.Constraint("Vertical", 7))
sketch4.addConstraint(Sketcher.Constraint("Horizontal", 8))
sketch4.addConstraint(Sketcher.Constraint("Vertical", 9))
sketch4.addConstraint(Sketcher.Constraint("Horizontal", 10))
sketch4.addConstraint(Sketcher.Constraint("Vertical", 11))
sketch4.addConstraint(Sketcher.Constraint("Horizontal", 12))
sketch4.addConstraint(Sketcher.Constraint("Vertical", 13))
sketch4.addConstraint(Sketcher.Constraint("Horizontal", 14))
sketch4.addConstraint(Sketcher.Constraint("Vertical", 15))
sketch4.addConstraint(Sketcher.Constraint("Vertical", 17))
sketch4.addConstraint(Sketcher.Constraint("Horizontal", 18))
sketch4.addConstraint(Sketcher.Constraint("Vertical", 19))
sketch4.addConstraint(Sketcher.Constraint("Horizontal", 20))
sketch4.addConstraint(Sketcher.Constraint("Vertical", 21))
sketch4.addConstraint(Sketcher.Constraint("Horizontal", 22))
sketch4.addConstraint(Sketcher.Constraint("Vertical", 23))
sketch4.addConstraint(Sketcher.Constraint("Horizontal", 24))
sketch4.addConstraint(Sketcher.Constraint("Vertical", 25))
sketch4.addConstraint(Sketcher.Constraint("Horizontal", 26))
sketch4.addConstraint(Sketcher.Constraint("Vertical", 27))
sketch4.addConstraint(Sketcher.Constraint("Horizontal", 28))
sketch4.addConstraint(Sketcher.Constraint("Vertical", 29))
sketch4.addConstraint(Sketcher.Constraint("Horizontal", 30))
sketch4.addConstraint(Sketcher.Constraint("Vertical", 33))
sketch4.addConstraint(Sketcher.Constraint("Horizontal", 34))
sketch4.addConstraint(Sketcher.Constraint("Vertical", 35))
sketch4.addConstraint(Sketcher.Constraint("Horizontal", 36))
sketch4.addConstraint(Sketcher.Constraint("Vertical", 37))
sketch4.addConstraint(Sketcher.Constraint("Horizontal", 38))
sketch4.addConstraint(Sketcher.Constraint("Vertical", 39))
sketch4.addConstraint(Sketcher.Constraint("Horizontal", 40))
sketch4.addConstraint(Sketcher.Constraint("Vertical", 41))
sketch4.addConstraint(Sketcher.Constraint("Horizontal", 42))
sketch4.addConstraint(Sketcher.Constraint("Vertical", 43))
sketch4.addConstraint(Sketcher.Constraint("Horizontal", 44))
sketch4.addConstraint(Sketcher.Constraint("Vertical", 45))
sketch4.addConstraint(Sketcher.Constraint("Horizontal", 46))
sketch4.addConstraint(Sketcher.Constraint("Vertical", 47))
sketch4.addConstraint(Sketcher.Constraint("Horizontal", 48))
sketch4.addConstraint(Sketcher.Constraint("Vertical", 49))
sketch4.addConstraint(Sketcher.Constraint("Horizontal", 50))
sketch4.addConstraint(Sketcher.Constraint("Vertical", 51))
sketch4.addConstraint(Sketcher.Constraint("Horizontal", 52))
sketch4.addConstraint(Sketcher.Constraint("Vertical", 53))
sketch4.addConstraint(Sketcher.Constraint("Horizontal", 54))
sketch4.addConstraint(Sketcher.Constraint("Vertical", 55))
sketch4.addConstraint(Sketcher.Constraint("Horizontal", 56))
sketch4.addConstraint(Sketcher.Constraint("Vertical", 57))
sketch4.addConstraint(Sketcher.Constraint("Horizontal", 58))
sketch4.addConstraint(Sketcher.Constraint("Vertical", 59))
sketch4.addConstraint(Sketcher.Constraint("Horizontal", 60))
sketch4.addConstraint(Sketcher.Constraint("Vertical", 61))
sketch4.addConstraint(Sketcher.Constraint("Coincident", 0, 3, -1, 1))
sketch4.addConstraint(Sketcher.Constraint("Coincident", 16, 3, -1, 1))
sketch4.addConstraint(Sketcher.Constraint("Coincident", 62, 3, -1, 1))
sketch4.addConstraint(Sketcher.Constraint("Coincident", 32, 3, 31, 3))
sketch4.addConstraint(Sketcher.Constraint("Coincident", 64, 3, 63, 3))
sketch4.addConstraint(Sketcher.Constraint("Equal", 16, 31))
sketch4.addConstraint(Sketcher.Constraint("Equal", 0, 32))
sketch4.addConstraint(Sketcher.Constraint("Equal", 31, 62))
sketch4.addConstraint(Sketcher.Constraint("Equal", 62, 63))
sketch4.addConstraint(Sketcher.Constraint("Equal", 32, 64))
sketch4.addConstraint(Sketcher.Constraint("Symmetric", 31, 3, 63, 3, -1, 1))
sketch4.addConstraint(Sketcher.Constraint("Symmetric", 17, 2, 33, 2, -1, 1))
sketch4.addConstraint(Sketcher.Constraint("Symmetric", 19, 2, 35, 2, -1, 1))
sketch4.addConstraint(Sketcher.Constraint("Symmetric", 21, 2, 37, 2, -1, 1))
sketch4.addConstraint(Sketcher.Constraint("Symmetric", 23, 2, 39, 2, -1, 1))
sketch4.addConstraint(Sketcher.Constraint("Symmetric", 25, 2, 41, 2, -1, 1))
sketch4.addConstraint(Sketcher.Constraint("Symmetric", 27, 2, 43, 2, -1, 1))
sketch4.addConstraint(Sketcher.Constraint("Symmetric", 29, 2, 45, 2, -1, 1))
sketch4.addConstraint(Sketcher.Constraint("Symmetric", 1, 2, 47, 2, -1, 1))
sketch4.addConstraint(Sketcher.Constraint("Symmetric", 3, 2, 49, 2, -1, 1))
sketch4.addConstraint(Sketcher.Constraint("Symmetric", 5, 2, 51, 2, -1, 1))
sketch4.addConstraint(Sketcher.Constraint("Symmetric", 7, 2, 53, 2, -1, 1))
sketch4.addConstraint(Sketcher.Constraint("Symmetric", 9, 2, 55, 2, -1, 1))
sketch4.addConstraint(Sketcher.Constraint("Symmetric", 11, 2, 57, 2, -1, 1))
sketch4.addConstraint(Sketcher.Constraint("Symmetric", 13, 2, 59, 2, -1, 1))
sketch4.addConstraint(Sketcher.Constraint("Symmetric", 14, 2, 33, 2, -2))
sketch4.addConstraint(Sketcher.Constraint("Symmetric", 12, 2, 35, 2, -2))
sketch4.addConstraint(Sketcher.Constraint("Symmetric", 10, 2, 37, 2, -2))
sketch4.addConstraint(Sketcher.Constraint("Symmetric", 8, 2, 39, 2, -2))
sketch4.addConstraint(Sketcher.Constraint("Symmetric", 6, 2, 41, 2, -2))
sketch4.addConstraint(Sketcher.Constraint("Symmetric", 4, 2, 43, 2, -2))
sketch4.addConstraint(Sketcher.Constraint("Symmetric", 2, 2, 45, 2, -2))
sketch4.addConstraint(Sketcher.Constraint("PointOnObject", 31, 3, -1))
sketch4.addConstraint(Sketcher.Constraint("Horizontal", 6, 2, 9, 2))
sketch4.addConstraint(Sketcher.Constraint("Horizontal", 8, 2, 11, 2))
sketch4.addConstraint(Sketcher.Constraint("Horizontal", 10, 2, 13, 2))
sketch4.addConstraint(Sketcher.Constraint("Horizontal", 16, 1, 61, 2))
sketch4.addConstraint(Sketcher.Constraint("Vertical", 1, 2, 4, 2))
sketch4.addConstraint(Sketcher.Constraint("Equal", 8, 12))
sketch4.addConstraint(Sketcher.Constraint("Equal", 56, 1))
sketch4.addConstraint(Sketcher.Constraint("Equal", 58, 3))
sketch4.addConstraint(Sketcher.Constraint("Equal", 52, 5))
sketch4.addConstraint(Sketcher.Constraint("Equal", 50, 7))
sketch4.addConstraint(Sketcher.Constraint("Diameter", 0, 4.1))
sketch4.addConstraint(Sketcher.Constraint("Diameter", 31, 6.5))
sketch4.addConstraint(Sketcher.Constraint("DistanceX", 2, 1, 2, 2, 0.2))
sketch4.addConstraint(Sketcher.Constraint("DistanceX", 6, 1, 6, 2, 2.1))
sketch4.addConstraint(Sketcher.Constraint("DistanceX", 8, 1, 8, 2, 1.2))
sketch4.addConstraint(Sketcher.Constraint("DistanceX", 10, 1, 10, 2, 6.8))
sketch4.addConstraint(Sketcher.Constraint("DistanceX", 31, 3, -1, 1, 8.0))
sketch4.addConstraint(Sketcher.Constraint("DistanceX", 14, 1, 14, 2, 2.85))
sketch4.addConstraint(Sketcher.Constraint("DistanceX", 1, 2, -1, 1, 14.7))
pocket2 = body.newObject("PartDesign::Pocket", "Pocket001")
pocket2.Profile = sketch4
pocket2.Length = 8.6
pocket2.Reversed = True

# Sketch on XY plane
sketch5 = body.newObject("Sketcher::SketchObject", "Sketch004")
sketch5.AttachmentSupport = (doc.getObject("XY_Plane"), [""])
sketch5.MapMode = "FlatFace"
sketch5.addGeometry(Part.LineSegment(Vector(0.55, 6.7, 0), Vector(-0.55, 6.7, 0)), False)
sketch5.addGeometry(Part.LineSegment(Vector(-0.55, 6.7, 0), Vector(-0.55, 3.203123, 0)), False)
sketch5.addGeometry(Part.ArcOfCircle(Part.Circle(Vector(0, 0, 0), Vector(0, 0, 1), 3.25), math.radians(80.256903), math.radians(99.743097)), False)
sketch5.addGeometry(Part.LineSegment(Vector(0.55, 3.203123, 0), Vector(0.55, 6.7, 0)), False)
sketch5.addGeometry(Part.LineSegment(Vector(-0.55, -6.7, 0), Vector(0.55, -6.7, 0)), False)
sketch5.addGeometry(Part.LineSegment(Vector(0.55, -6.7, 0), Vector(0.55, -3.203123, 0)), False)
sketch5.addGeometry(Part.ArcOfCircle(Part.Circle(Vector(0, 0, 0), Vector(0, 0, 1), 3.25), math.radians(-99.743097), math.radians(-80.256903)), False)
sketch5.addGeometry(Part.LineSegment(Vector(-0.55, -3.203123, 0), Vector(-0.55, -6.7, 0)), False)
sketch5.addConstraint(Sketcher.Constraint("Coincident", 0, 2, 1, 1))
sketch5.addConstraint(Sketcher.Constraint("Coincident", 1, 2, 2, 2))
sketch5.addConstraint(Sketcher.Constraint("Coincident", 2, 1, 3, 1))
sketch5.addConstraint(Sketcher.Constraint("Coincident", 3, 2, 0, 1))
sketch5.addConstraint(Sketcher.Constraint("Coincident", 4, 2, 5, 1))
sketch5.addConstraint(Sketcher.Constraint("Coincident", 5, 2, 6, 2))
sketch5.addConstraint(Sketcher.Constraint("Coincident", 6, 1, 7, 1))
sketch5.addConstraint(Sketcher.Constraint("Coincident", 7, 2, 4, 1))
sketch5.addConstraint(Sketcher.Constraint("Horizontal", 0))
sketch5.addConstraint(Sketcher.Constraint("Vertical", 1))
sketch5.addConstraint(Sketcher.Constraint("Vertical", 3))
sketch5.addConstraint(Sketcher.Constraint("Horizontal", 4))
sketch5.addConstraint(Sketcher.Constraint("Vertical", 5))
sketch5.addConstraint(Sketcher.Constraint("Vertical", 7))
sketch5.addConstraint(Sketcher.Constraint("Coincident", 2, 3, -1, 1))
sketch5.addConstraint(Sketcher.Constraint("Coincident", 6, 3, -1, 1))
sketch5.addConstraint(Sketcher.Constraint("Equal", 2, 6))
sketch5.addConstraint(Sketcher.Constraint("Symmetric", 0, 2, 4, 2, -1, 1))
sketch5.addConstraint(Sketcher.Constraint("Horizontal", 1, 2, 2, 1))
sketch5.addConstraint(Sketcher.Constraint("Horizontal", 5, 2, 6, 1))
sketch5.addConstraint(Sketcher.Constraint("Radius", 2, 3.25))
sketch5.addConstraint(Sketcher.Constraint("DistanceX", 0, 2, 0, 1, 1.1))
sketch5.addConstraint(Sketcher.Constraint("DistanceY", -1, 1, 0, 2, 6.7))
pocket3 = body.newObject("PartDesign::Pocket", "Pocket002")
pocket3.Profile = sketch5
pocket3.Length = 2.3
pocket3.Reversed = True

doc.recompute()
